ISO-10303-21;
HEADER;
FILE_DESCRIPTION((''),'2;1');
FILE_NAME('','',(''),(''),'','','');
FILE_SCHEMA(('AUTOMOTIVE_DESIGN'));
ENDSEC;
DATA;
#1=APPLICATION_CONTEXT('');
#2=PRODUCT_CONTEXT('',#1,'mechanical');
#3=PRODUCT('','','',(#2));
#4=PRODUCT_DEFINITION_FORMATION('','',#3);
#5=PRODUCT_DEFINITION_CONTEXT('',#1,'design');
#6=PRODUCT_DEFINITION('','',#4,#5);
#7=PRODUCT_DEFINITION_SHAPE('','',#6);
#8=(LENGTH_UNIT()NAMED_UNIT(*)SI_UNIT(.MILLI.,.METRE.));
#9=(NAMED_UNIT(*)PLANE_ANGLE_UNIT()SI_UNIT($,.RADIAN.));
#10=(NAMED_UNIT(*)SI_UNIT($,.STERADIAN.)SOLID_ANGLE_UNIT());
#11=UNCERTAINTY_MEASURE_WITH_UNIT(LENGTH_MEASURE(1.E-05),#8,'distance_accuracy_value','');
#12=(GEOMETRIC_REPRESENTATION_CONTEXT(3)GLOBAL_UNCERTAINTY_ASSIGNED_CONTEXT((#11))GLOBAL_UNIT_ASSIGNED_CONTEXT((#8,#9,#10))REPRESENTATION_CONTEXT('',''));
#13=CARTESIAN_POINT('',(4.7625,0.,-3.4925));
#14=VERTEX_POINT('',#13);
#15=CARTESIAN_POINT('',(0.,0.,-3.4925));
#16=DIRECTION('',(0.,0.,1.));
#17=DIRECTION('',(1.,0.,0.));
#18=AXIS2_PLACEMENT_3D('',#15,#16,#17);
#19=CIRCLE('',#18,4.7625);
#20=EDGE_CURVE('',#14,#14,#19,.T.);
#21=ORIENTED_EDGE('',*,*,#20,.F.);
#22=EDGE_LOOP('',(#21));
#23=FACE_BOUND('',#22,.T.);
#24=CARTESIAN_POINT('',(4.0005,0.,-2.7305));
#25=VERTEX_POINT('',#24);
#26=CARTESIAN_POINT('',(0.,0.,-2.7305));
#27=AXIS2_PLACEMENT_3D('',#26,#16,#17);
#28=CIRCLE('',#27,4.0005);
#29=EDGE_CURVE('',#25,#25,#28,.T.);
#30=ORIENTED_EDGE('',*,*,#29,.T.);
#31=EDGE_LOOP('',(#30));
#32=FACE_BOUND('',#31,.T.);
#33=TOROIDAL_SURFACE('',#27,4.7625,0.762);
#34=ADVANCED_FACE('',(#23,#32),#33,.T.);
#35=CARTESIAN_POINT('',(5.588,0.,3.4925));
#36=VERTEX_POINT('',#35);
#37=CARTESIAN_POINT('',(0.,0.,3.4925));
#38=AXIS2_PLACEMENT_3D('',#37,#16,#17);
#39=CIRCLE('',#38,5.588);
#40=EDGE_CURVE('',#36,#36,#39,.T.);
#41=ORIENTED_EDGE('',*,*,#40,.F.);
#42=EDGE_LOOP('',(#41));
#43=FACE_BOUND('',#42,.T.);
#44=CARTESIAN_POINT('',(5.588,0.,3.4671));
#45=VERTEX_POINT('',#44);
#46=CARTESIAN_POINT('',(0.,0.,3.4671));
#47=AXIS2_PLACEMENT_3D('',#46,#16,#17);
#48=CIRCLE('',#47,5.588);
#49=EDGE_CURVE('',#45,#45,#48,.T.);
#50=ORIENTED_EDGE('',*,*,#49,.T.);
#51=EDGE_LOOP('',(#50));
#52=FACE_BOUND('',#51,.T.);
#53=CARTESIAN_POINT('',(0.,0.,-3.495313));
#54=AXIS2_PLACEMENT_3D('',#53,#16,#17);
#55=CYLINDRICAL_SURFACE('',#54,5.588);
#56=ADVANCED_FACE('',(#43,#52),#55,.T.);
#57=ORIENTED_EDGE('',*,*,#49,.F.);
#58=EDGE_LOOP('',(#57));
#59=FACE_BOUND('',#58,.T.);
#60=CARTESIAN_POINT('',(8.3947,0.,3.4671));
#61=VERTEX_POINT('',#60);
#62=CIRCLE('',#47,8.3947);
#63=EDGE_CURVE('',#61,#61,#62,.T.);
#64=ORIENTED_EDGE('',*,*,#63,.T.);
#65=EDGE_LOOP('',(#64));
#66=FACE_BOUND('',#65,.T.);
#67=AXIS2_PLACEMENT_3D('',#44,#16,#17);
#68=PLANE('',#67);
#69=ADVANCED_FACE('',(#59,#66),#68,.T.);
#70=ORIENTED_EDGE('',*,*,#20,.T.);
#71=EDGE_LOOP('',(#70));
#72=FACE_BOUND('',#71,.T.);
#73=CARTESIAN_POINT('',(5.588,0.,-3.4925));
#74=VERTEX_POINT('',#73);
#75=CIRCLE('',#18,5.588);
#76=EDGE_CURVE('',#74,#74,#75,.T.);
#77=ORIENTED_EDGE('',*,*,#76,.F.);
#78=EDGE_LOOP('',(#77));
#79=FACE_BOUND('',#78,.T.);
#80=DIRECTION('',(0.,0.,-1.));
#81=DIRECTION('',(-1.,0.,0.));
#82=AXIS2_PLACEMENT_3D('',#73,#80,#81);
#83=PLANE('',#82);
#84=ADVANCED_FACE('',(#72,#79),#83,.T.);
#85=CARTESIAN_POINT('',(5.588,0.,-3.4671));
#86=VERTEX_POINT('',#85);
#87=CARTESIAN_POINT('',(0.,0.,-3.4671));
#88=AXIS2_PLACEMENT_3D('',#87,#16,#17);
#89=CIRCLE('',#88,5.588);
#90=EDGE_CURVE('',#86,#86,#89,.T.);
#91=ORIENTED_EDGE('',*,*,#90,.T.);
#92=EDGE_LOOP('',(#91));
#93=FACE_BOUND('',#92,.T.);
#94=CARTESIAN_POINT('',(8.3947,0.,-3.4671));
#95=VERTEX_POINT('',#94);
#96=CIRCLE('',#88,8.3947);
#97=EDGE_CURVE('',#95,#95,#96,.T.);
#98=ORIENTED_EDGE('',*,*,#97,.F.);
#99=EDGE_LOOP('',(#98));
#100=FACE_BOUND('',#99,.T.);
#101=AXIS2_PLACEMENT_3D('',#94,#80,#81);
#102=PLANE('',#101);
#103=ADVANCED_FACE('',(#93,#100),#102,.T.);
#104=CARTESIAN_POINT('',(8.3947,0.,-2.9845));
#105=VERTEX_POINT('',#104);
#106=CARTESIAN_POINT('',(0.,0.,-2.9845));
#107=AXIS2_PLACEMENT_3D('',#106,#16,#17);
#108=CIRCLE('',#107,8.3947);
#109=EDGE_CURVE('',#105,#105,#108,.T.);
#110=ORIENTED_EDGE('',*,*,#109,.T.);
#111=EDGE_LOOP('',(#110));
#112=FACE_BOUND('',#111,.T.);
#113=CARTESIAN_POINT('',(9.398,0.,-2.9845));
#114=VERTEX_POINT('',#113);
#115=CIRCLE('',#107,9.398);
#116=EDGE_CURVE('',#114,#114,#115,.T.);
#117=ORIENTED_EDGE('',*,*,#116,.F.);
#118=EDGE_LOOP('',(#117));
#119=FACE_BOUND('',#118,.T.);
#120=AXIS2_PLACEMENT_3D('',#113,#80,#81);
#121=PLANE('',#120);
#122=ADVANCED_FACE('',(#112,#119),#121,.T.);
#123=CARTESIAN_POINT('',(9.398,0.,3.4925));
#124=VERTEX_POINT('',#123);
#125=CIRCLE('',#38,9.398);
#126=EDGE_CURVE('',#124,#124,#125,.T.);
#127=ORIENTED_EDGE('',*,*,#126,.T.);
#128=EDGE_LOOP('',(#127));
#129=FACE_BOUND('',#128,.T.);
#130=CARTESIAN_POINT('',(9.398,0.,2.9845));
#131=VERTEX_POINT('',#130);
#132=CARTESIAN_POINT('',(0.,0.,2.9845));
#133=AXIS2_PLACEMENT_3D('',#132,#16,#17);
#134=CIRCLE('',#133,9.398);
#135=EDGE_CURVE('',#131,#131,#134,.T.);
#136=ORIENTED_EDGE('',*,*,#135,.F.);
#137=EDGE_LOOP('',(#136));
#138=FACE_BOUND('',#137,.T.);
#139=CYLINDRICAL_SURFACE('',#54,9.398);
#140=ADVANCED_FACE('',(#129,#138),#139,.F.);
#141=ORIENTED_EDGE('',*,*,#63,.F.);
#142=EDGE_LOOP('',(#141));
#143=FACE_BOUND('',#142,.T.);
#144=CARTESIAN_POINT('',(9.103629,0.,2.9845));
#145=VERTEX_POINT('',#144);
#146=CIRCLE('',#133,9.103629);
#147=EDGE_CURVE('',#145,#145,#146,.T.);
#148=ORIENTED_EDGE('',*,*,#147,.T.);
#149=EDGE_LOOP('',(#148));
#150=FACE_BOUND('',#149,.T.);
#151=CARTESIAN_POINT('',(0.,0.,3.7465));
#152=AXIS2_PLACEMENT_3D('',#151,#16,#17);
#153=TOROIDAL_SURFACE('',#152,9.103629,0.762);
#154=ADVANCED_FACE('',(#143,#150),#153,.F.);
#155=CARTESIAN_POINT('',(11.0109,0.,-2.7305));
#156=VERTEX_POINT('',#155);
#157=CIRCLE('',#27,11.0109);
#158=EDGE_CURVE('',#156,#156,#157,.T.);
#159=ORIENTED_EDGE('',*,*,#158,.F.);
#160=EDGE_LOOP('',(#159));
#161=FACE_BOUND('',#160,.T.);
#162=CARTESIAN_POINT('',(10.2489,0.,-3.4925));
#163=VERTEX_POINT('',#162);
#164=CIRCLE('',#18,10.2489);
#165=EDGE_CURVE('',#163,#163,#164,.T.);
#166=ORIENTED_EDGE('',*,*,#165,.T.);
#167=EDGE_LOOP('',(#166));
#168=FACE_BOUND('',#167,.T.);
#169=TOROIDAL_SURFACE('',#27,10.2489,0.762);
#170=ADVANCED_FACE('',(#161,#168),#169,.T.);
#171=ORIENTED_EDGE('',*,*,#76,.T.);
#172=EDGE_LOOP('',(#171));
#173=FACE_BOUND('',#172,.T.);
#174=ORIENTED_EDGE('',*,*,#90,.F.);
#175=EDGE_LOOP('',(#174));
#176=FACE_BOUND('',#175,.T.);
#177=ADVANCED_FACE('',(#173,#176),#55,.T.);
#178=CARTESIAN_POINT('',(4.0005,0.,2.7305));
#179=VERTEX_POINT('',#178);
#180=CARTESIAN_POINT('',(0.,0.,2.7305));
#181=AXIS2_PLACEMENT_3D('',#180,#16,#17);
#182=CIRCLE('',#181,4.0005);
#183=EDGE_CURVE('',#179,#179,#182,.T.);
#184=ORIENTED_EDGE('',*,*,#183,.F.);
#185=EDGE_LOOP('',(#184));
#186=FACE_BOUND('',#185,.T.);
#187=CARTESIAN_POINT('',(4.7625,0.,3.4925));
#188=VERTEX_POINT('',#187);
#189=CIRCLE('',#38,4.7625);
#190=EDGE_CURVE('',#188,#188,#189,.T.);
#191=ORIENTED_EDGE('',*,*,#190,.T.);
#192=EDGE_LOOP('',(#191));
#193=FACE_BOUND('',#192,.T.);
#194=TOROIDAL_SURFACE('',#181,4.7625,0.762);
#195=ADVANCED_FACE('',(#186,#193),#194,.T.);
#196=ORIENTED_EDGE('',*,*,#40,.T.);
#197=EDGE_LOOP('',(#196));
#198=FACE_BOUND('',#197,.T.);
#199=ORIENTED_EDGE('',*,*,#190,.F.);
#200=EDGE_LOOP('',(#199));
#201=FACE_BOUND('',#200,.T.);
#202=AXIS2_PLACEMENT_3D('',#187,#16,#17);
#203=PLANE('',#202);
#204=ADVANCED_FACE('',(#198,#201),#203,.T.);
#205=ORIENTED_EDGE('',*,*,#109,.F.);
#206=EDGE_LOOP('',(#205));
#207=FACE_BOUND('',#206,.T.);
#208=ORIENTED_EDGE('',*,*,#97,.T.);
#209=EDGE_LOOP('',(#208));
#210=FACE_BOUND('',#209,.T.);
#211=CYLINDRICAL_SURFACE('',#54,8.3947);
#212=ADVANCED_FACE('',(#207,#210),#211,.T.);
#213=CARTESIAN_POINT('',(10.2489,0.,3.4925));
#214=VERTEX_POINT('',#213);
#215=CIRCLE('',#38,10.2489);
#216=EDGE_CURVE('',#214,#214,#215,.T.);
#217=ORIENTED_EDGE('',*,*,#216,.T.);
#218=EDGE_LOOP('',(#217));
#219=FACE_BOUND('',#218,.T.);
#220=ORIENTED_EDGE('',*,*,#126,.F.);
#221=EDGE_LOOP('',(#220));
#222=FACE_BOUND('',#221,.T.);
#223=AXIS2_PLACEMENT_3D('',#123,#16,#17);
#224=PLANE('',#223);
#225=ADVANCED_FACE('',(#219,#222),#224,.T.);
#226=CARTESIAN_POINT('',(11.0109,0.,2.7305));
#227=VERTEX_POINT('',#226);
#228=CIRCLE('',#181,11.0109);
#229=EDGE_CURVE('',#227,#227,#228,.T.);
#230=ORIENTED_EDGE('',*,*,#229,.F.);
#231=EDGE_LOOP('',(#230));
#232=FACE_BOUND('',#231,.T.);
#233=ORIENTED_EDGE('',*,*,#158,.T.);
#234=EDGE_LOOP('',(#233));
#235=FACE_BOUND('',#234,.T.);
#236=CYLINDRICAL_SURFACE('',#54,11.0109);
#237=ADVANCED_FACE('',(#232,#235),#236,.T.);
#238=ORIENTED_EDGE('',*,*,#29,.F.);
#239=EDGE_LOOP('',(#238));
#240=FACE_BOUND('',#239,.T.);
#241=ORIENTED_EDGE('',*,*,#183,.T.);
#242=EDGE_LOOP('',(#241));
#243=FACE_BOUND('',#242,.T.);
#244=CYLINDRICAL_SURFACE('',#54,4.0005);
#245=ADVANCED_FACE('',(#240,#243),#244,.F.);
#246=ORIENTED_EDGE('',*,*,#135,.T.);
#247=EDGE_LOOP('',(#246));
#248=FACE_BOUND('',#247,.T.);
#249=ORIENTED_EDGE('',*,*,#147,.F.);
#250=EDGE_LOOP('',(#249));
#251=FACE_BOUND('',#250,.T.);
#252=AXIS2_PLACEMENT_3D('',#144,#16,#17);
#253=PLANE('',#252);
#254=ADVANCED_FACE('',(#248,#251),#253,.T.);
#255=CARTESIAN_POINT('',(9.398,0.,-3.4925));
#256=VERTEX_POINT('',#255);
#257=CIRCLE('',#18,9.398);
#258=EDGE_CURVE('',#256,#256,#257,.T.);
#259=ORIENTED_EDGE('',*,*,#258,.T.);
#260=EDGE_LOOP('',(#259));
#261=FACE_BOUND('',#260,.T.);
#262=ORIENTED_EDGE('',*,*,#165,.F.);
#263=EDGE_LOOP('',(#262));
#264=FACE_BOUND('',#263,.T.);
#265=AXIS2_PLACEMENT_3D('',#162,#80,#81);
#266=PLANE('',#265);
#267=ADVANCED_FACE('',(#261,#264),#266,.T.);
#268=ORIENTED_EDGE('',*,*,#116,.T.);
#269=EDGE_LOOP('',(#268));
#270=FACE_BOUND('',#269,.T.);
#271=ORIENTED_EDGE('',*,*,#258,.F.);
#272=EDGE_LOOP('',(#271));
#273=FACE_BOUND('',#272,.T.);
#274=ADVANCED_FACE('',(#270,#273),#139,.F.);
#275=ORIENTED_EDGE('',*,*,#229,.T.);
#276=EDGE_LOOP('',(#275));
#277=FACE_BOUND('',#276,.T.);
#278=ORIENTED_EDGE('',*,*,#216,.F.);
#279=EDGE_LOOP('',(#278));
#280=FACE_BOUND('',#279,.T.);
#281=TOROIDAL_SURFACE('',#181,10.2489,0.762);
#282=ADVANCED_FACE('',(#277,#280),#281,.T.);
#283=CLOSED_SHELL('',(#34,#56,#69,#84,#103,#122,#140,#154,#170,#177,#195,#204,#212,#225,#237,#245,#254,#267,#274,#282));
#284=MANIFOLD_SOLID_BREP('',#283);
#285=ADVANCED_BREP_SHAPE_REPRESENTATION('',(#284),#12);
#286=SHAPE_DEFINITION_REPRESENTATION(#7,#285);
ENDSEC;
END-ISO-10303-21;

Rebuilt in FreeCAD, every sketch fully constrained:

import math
import FreeCAD as App
import Part
import Sketcher
from FreeCAD import Vector
Q = App.Units.Quantity

doc = App.newDocument("Part")
body = doc.addObject("PartDesign::Body", "Body")

# Sketch on XZ plane
sketch1 = body.newObject("Sketcher::SketchObject", "Sketch")
sketch1.AttachmentSupport = (doc.getObject("XZ_Plane"), [""])
sketch1.MapMode = "FlatFace"
sketch1.addGeometry(Part.LineSegment(Vector(4, -2.731, 0), Vector(4, 2.731, 0)), False)
sketch1.addGeometry(Part.ArcOfCircle(Part.Circle(Vector(4.763, 2.73, 0), Vector(0, 0, 1), 0.762), math.radians(90), math.radians(180)), False)
sketch1.addGeometry(Part.LineSegment(Vector(4.763, 3.493, 0), Vector(5.588, 3.493, 0)), False)
sketch1.addGeometry(Part.LineSegment(Vector(5.588, 3.493, 0), Vector(5.588, 3.467, 0)), False)
sketch1.addGeometry(Part.LineSegment(Vector(5.588, 3.467, 0), Vector(8.395, 3.467, 0)), False)
sketch1.addGeometry(Part.ArcOfCircle(Part.Circle(Vector(9.104, 3.747, 0), Vector(0, 0, 1), 0.762), math.radians(-158), math.radians(-90)), False)
sketch1.addGeometry(Part.LineSegment(Vector(9.104, 2.985, 0), Vector(9.398, 2.985, 0)), False)
sketch1.addGeometry(Part.LineSegment(Vector(9.398, 2.985, 0), Vector(9.398, 3.493, 0)), False)
sketch1.addGeometry(Part.LineSegment(Vector(9.398, 3.493, 0), Vector(10.249, 3.493, 0)), False)
sketch1.addGeometry(Part.ArcOfCircle(Part.Circle(Vector(10.249, 2.73, 0), Vector(0, 0, 1), 0.762), math.radians(0), math.radians(90)), False)
sketch1.addGeometry(Part.LineSegment(Vector(11.011, 2.731, 0), Vector(11.011, -2.731, 0)), False)
sketch1.addGeometry(Part.ArcOfCircle(Part.Circle(Vector(10.249, -2.73, 0), Vector(0, 0, 1), 0.762), math.radians(-90), math.radians(0)), False)
sketch1.addGeometry(Part.LineSegment(Vector(10.249, -3.493, 0), Vector(9.398, -3.493, 0)), False)
sketch1.addGeometry(Part.LineSegment(Vector(9.398, -3.493, 0), Vector(9.398, -2.985, 0)), False)
sketch1.addGeometry(Part.LineSegment(Vector(9.398, -2.985, 0), Vector(8.395, -2.985, 0)), False)
sketch1.addGeometry(Part.LineSegment(Vector(8.395, -2.985, 0), Vector(8.395, -3.467, 0)), False)
sketch1.addGeometry(Part.LineSegment(Vector(8.395, -3.467, 0), Vector(5.588, -3.467, 0)), False)
sketch1.addGeometry(Part.LineSegment(Vector(5.588, -3.467, 0), Vector(5.588, -3.493, 0)), False)
sketch1.addGeometry(Part.LineSegment(Vector(5.588, -3.493, 0), Vector(4.763, -3.493, 0)), False)
sketch1.addGeometry(Part.ArcOfCircle(Part.Circle(Vector(4.763, -2.73, 0), Vector(0, 0, 1), 0.762), math.radians(-180), math.radians(-90)), False)
sketch1.addConstraint(Sketcher.Constraint("Tangent", 0, 2, 1, 2))
sketch1.addConstraint(Sketcher.Constraint("Tangent", 1, 1, 2, 1))
sketch1.addConstraint(Sketcher.Constraint("Coincident", 2, 2, 3, 1))
sketch1.addConstraint(Sketcher.Constraint("Coincident", 3, 2, 4, 1))
sketch1.addConstraint(Sketcher.Constraint("Coincident", 4, 2, 5, 1))
sketch1.addConstraint(Sketcher.Constraint("Tangent", 5, 2, 6, 1))
sketch1.addConstraint(Sketcher.Constraint("Coincident", 6, 2, 7, 1))
sketch1.addConstraint(Sketcher.Constraint("Coincident", 7, 2, 8, 1))
sketch1.addConstraint(Sketcher.Constraint("Tangent", 8, 2, 9, 2))
sketch1.addConstraint(Sketcher.Constraint("Tangent", 9, 1, 10, 1))
sketch1.addConstraint(Sketcher.Constraint("Tangent", 10, 2, 11, 2))
sketch1.addConstraint(Sketcher.Constraint("Tangent", 11, 1, 12, 1))
sketch1.addConstraint(Sketcher.Constraint("Coincident", 12, 2, 13, 1))
sketch1.addConstraint(Sketcher.Constraint("Coincident", 13, 2, 14, 1))
sketch1.addConstraint(Sketcher.Constraint("Coincident", 14, 2, 15, 1))
sketch1.addConstraint(Sketcher.Constraint("Coincident", 15, 2, 16, 1))
sketch1.addConstraint(Sketcher.Constraint("Coincident", 16, 2, 17, 1))
sketch1.addConstraint(Sketcher.Constraint("Coincident", 17, 2, 18, 1))
sketch1.addConstraint(Sketcher.Constraint("Tangent", 18, 2, 19, 2))
sketch1.addConstraint(Sketcher.Constraint("Tangent", 19, 1, 0, 1))
sketch1.addConstraint(Sketcher.Constraint("Vertical", 0))
sketch1.addConstraint(Sketcher.Constraint("Horizontal", 2))
sketch1.addConstraint(Sketcher.Constraint("Vertical", 3))
sketch1.addConstraint(Sketcher.Constraint("Horizontal", 4))
sketch1.addConstraint(Sketcher.Constraint("Horizontal", 6))
sketch1.addConstraint(Sketcher.Constraint("Vertical", 7))
sketch1.addConstraint(Sketcher.Constraint("Horizontal", 8))
sketch1.addConstraint(Sketcher.Constraint("Vertical", 10))
sketch1.addConstraint(Sketcher.Constraint("Horizontal", 12))
sketch1.addConstraint(Sketcher.Constraint("Vertical", 13))
sketch1.addConstraint(Sketcher.Constraint("Horizontal", 14))
sketch1.addConstraint(Sketcher.Constraint("Vertical", 15))
sketch1.addConstraint(Sketcher.Constraint("Horizontal", 16))
sketch1.addConstraint(Sketcher.Constraint("Vertical", 17))
sketch1.addConstraint(Sketcher.Constraint("Horizontal", 18))
sketch1.addConstraint(Sketcher.Constraint("Equal", 1, 5))
sketch1.addConstraint(Sketcher.Constraint("Equal", 5, 9))
sketch1.addConstraint(Sketcher.Constraint("Equal", 9, 11))
sketch1.addConstraint(Sketcher.Constraint("Equal", 11, 19))
sketch1.addConstraint(Sketcher.Constraint("Symmetric", 7, 2, 12, 2, -1))
sketch1.addConstraint(Sketcher.Constraint("Symmetric", 4, 2, 15, 2, -1))
sketch1.addConstraint(Sketcher.Constraint("Symmetric", 2, 2, 17, 2, -1))
sketch1.addConstraint(Sketcher.Constraint("Horizontal", 1, 3, 9, 3))
sketch1.addConstraint(Sketcher.Constraint("Equal", 7, 13))
sketch1.addConstraint(Sketcher.Constraint("Radius", 1, Q("0.03 in")))
sketch1.addConstraint(Sketcher.Constraint("DistanceY", 7, 1, 7, 2, Q("0.02 in")))
sketch1.addConstraint(Sketcher.Constraint("DistanceY", 0, 1, 0, 2, Q("0.215 in")))
sketch1.addConstraint(Sketcher.Constraint("DistanceY", 3, 2, 3, 1, Q("0.001 in")))
sketch1.addConstraint(Sketcher.Constraint("DistanceX", -1, 1, 2, 2, Q("0.22 in")))
sketch1.addConstraint(Sketcher.Constraint("DistanceX", -1, 1, 6, 2, Q("0.37 in")))
sketch1.addConstraint(Sketcher.Constraint("DistanceX", 2, 1, 2, 2, Q("0.0325 in")))
sketch1.addConstraint(Sketcher.Constraint("DistanceX", 4, 1, 4, 2, Q("0.1105 in")))
sketch1.addConstraint(Sketcher.Constraint("DistanceX", 8, 1, 8, 2, Q("0.0335 in")))
revolution = body.newObject("PartDesign::Revolution", "Revolution")
revolution.Profile = sketch1
revolution.ReferenceAxis = (sketch1, ["V_Axis"])
revolution.Angle = 360

doc.recompute()
